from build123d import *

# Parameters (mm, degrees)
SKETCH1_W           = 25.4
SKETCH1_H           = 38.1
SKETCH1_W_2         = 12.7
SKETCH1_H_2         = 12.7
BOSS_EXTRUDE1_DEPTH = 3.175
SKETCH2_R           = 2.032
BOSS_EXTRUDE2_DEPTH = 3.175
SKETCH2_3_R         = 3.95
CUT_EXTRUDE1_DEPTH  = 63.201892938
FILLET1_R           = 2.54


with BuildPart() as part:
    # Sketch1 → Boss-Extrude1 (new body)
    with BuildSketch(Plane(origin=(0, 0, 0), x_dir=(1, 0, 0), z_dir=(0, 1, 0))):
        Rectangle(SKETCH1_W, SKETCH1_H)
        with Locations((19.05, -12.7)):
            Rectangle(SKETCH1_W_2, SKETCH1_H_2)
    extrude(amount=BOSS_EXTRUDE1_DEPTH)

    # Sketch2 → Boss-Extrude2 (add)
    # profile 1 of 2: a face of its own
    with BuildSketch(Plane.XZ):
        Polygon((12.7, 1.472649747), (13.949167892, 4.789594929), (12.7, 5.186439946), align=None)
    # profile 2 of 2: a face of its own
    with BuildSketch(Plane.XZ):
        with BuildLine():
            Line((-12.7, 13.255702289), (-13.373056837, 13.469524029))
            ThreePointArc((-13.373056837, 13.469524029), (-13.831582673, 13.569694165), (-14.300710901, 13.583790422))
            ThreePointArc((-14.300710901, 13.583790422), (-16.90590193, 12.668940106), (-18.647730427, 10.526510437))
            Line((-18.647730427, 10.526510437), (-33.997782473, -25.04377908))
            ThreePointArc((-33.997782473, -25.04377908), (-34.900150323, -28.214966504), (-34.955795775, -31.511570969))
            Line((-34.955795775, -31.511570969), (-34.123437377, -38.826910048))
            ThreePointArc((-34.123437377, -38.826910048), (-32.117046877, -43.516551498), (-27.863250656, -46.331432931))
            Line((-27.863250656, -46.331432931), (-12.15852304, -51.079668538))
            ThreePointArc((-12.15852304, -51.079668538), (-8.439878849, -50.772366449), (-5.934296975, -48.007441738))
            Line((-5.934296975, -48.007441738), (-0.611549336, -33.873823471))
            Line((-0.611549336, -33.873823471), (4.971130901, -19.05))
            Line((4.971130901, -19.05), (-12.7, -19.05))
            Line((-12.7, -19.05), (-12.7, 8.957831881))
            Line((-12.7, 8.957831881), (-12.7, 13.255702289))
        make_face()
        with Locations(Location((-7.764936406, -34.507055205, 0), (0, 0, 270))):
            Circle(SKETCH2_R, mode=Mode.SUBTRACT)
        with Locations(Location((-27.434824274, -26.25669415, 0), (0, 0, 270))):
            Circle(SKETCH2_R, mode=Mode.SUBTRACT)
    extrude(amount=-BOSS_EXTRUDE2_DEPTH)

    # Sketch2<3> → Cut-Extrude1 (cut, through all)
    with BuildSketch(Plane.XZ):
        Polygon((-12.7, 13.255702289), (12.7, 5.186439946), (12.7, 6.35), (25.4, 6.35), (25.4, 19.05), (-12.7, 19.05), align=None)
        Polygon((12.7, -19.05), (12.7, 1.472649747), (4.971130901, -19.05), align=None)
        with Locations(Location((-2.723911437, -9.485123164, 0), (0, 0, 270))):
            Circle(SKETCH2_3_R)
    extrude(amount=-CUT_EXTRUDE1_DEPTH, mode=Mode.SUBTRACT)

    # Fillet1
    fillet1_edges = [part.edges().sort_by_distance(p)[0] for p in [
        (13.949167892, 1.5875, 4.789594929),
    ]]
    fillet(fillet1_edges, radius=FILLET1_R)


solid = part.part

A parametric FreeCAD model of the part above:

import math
import FreeCAD as App
import Part
import Sketcher
from FreeCAD import Vector
Q = App.Units.Quantity


def edges_at(feature, points):
    """Names of the edges that pass closest to the given points."""
    edges = feature.Shape.Edges
    near = lambda p: min(range(len(edges)), key=lambda i: edges[i].distToShape(Part.Vertex(*p))[0])
    return sorted({f"Edge{near(p) + 1}" for p in points})


def add_polygon(sketch, points):
    """Adds a closed chain of lines whose ends are joined by coincident constraints."""
    first, n = sketch.GeometryCount, len(points)
    for a, b in zip(points, points[1:] + points[:1]):
        sketch.addGeometry(Part.LineSegment(App.Vector(*a, 0), App.Vector(*b, 0)), False)
    for i in range(n):
        sketch.addConstraint(Sketcher.Constraint("Coincident", first + i, 2, first + (i + 1) % n, 1))

doc = App.newDocument("Part")
body = doc.addObject("PartDesign::Body", "Body")

# Sketch on XZ plane
sketch1 = body.newObject("Sketcher::SketchObject", "Sketch")
sketch1.AttachmentSupport = (doc.getObject("XZ_Plane"), [""])
sketch1.MapMode = "FlatFace"
add_polygon(sketch1, [(-13, -19), (-13, 19), (25, 19), (25, 6), (13, 6), (13, -19)])  # lines 0-5
sketch1.addConstraint([
    Sketcher.Constraint("Vertical", 0),
    Sketcher.Constraint("Horizontal", 1),
    Sketcher.Constraint("Vertical", 2),
    Sketcher.Constraint("Horizontal", 3),
    Sketcher.Constraint("Vertical", 4),
    Sketcher.Constraint("Horizontal", 5),
    Sketcher.Constraint("Symmetric", 0, 2, 4, 2, -1, 1),
    Sketcher.Constraint("Equal", 1, 0),
    Sketcher.Constraint("Equal", 3, 2),
    Sketcher.Constraint("DistanceX", 5, 2, 5, 1, Q("1 in")),
    Sketcher.Constraint("DistanceX", 1, 1, 1, 2, Q("1.5 in")),
])
pad1 = body.newObject("PartDesign::Pad", "Pad")
pad1.Profile = sketch1
pad1.Length = Q("0.125 in")
pad1.Reversed = True

# Sketch on XZ plane
sketch2 = body.newObject("Sketcher::SketchObject", "Sketch001")
sketch2.AttachmentSupport = (doc.getObject("XZ_Plane"), [""])
sketch2.MapMode = "FlatFace"
add_polygon(sketch2, [(12.7, 1.5), (13.9, 4.8), (12.7, 5.2)])  # lines 0-2
sketch2.addGeometry(Part.LineSegment(Vector(-12.7, 13.3, 0), Vector(-13.4, 13.5, 0)), False)  # 3
sketch2.addGeometry(Part.ArcOfCircle(Part.Circle(Vector(-14.1, 11, 0), Vector(0, 0, 1), 2.5), math.radians(72), math.radians(94)), False)  # 4
sketch2.addGeometry(Part.ArcOfCircle(Part.Circle(Vector(-14, 8.5, 0), Vector(0, 0, 1), 5.1), math.radians(94), math.radians(157)), False)  # 5
sketch2.addGeometry(Part.LineSegment(Vector(-18.6, 10.5, 0), Vector(-34, -25, 0)), False)  # 6
sketch2.addGeometry(Part.ArcOfCircle(Part.Circle(Vector(-22.3, -30.1, 0), Vector(0, 0, 1), 12.7), math.radians(157), math.radians(186)), False)  # 7
sketch2.addGeometry(Part.LineSegment(Vector(-35, -31.5, 0), Vector(-34.1, -38.8, 0)), False)  # 8
sketch2.addGeometry(Part.ArcOfCircle(Part.Circle(Vector(-25.3, -37.8, 0), Vector(0, 0, 1), 8.9), math.radians(-174), math.radians(-107)), False)  # 9
sketch2.addGeometry(Part.LineSegment(Vector(-27.9, -46.3, 0), Vector(-12.2, -51.1, 0)), False)  # 10
sketch2.addGeometry(Part.ArcOfCircle(Part.Circle(Vector(-10.7, -46.2, 0), Vector(0, 0, 1), 5.1), math.radians(-107), math.radians(-21)), False)  # 11
sketch2.addGeometry(Part.LineSegment(Vector(-5.9, -48, 0), Vector(-0.6, -33.9, 0)), False)  # 12
sketch2.addGeometry(Part.LineSegment(Vector(-0.6, -33.9, 0), Vector(5, -19.1, 0)), False)  # 13
sketch2.addGeometry(Part.LineSegment(Vector(5, -19.1, 0), Vector(-12.7, -19.1, 0)), False)  # 14
sketch2.addGeometry(Part.LineSegment(Vector(-12.7, -19.1, 0), Vector(-12.7, 13.3, 0)), False)  # 15
sketch2.addGeometry(Part.Circle(Vector(-7.8, -34.5, 0), Vector(0, 0, 1), 2), False)  # 16
sketch2.addGeometry(Part.Circle(Vector(-27.4, -26.3, 0), Vector(0, 0, 1), 2), False)  # 17
sketch2.addConstraint([
    Sketcher.Constraint("Tangent", 3, 2, 4, 1),
    Sketcher.Constraint("Tangent", 4, 2, 5, 1),
    Sketcher.Constraint("Tangent", 5, 2, 6, 1),
    Sketcher.Constraint("Tangent", 6, 2, 7, 1),
    Sketcher.Constraint("Tangent", 7, 2, 8, 1),
    Sketcher.Constraint("Tangent", 8, 2, 9, 1),
    Sketcher.Constraint("Tangent", 9, 2, 10, 1),
    Sketcher.Constraint("Tangent", 10, 2, 11, 1),
    Sketcher.Constraint("Tangent", 11, 2, 12, 1),
    Sketcher.Constraint("Coincident", 12, 2, 13, 1),
    Sketcher.Constraint("Coincident", 13, 2, 14, 1),
    Sketcher.Constraint("Coincident", 14, 2, 15, 1),
    Sketcher.Constraint("Coincident", 15, 2, 3, 1),
    Sketcher.Constraint("Vertical", 2),
    Sketcher.Constraint("Horizontal", 14),
    Sketcher.Constraint("Vertical", 15),
    Sketcher.Constraint("Equal", 5, 11),
    Sketcher.Constraint("Equal", 16, 17),
    Sketcher.Constraint("Parallel", 1, 3),
    Sketcher.Constraint("Parallel", 0, 12),
    Sketcher.Constraint("Parallel", 12, 13),
    Sketcher.Constraint("Radius", 4, Q("0.1 in")),
    Sketcher.Constraint("Radius", 5, Q("0.2 in")),
    Sketcher.Constraint("Radius", 7, Q("0.5 in")),
    Sketcher.Constraint("Diameter", 16, Q("0.16 in")),
    Sketcher.Constraint("Radius", 9, Q("0.35 in")),
    Sketcher.Constraint("DistanceX", -1, 1, 1, 2, Q("0.5 in")),
    Sketcher.Constraint("DistanceX", 14, 2, -1, 1, Q("0.5 in")),
    Sketcher.Constraint("DistanceY", 13, 2, -1, 1, Q("0.75 in")),
    Sketcher.Constraint("DistanceX", 4, 2, 0, 2, Q("1.1122 in")),
    Sketcher.Constraint("DistanceX", 14, 2, 14, 1, Q("17.671131 mm")),
    Sketcher.Constraint("DistanceY", 2, 2, 2, 1, Q("3.71379 mm")),
    Sketcher.Constraint("DistanceY", 7, 3, 5, 3, Q("38.5895 mm")),
    Sketcher.Constraint("DistanceY", 7, 3, 17, 3, Q("3.819102 mm")),
    Sketcher.Constraint("DistanceY", 10, 2, 9, 3, Q("13.257801 mm")),
    Sketcher.Constraint("DistanceY", 5, 3, 15, 2, Q("4.741999 mm")),
    Sketcher.Constraint("Distance", 0, Q("3.544368 mm")),
    Sketcher.Constraint("Distance", 1, Q("1.310689 mm")),
    Sketcher.Constraint("Distance", 6, Q("38.741058 mm")),
    Sketcher.Constraint("Distance", 8, Q("7.362541 mm")),
    Sketcher.Constraint("DistanceY", 15, 1, 15, 2, Q("32.305702 mm")),
    Sketcher.Constraint("DistanceX", 9, 3, -1, 1, Q("25.290432 mm")),
    Sketcher.Constraint("DistanceY", -1, 1, 1, 2, Q("5.18644 mm")),
    Sketcher.Constraint("DistanceX", 12, 2, -1, 1, Q("0.611549 mm")),
    Sketcher.Constraint("DistanceX", 7, 3, 16, 3, Q("14.57228 mm")),
    Sketcher.Constraint("DistanceY", 16, 3, 7, 3, Q("4.431259 mm")),
    Sketcher.Constraint("DistanceX", 17, 3, 7, 3, Q("5.097608 mm")),
])
pad2 = body.newObject("PartDesign::Pad", "Pad001")
pad2.Profile = sketch2
pad2.Length = Q("0.125 in")
pad2.Reversed = True

# Sketch on XZ plane
sketch3 = body.newObject("Sketcher::SketchObject", "Sketch002")
sketch3.AttachmentSupport = (doc.getObject("XZ_Plane"), [""])
sketch3.MapMode = "FlatFace"
add_polygon(sketch3, [(-12.7, 13.3), (12.7, 5.2), (12.7, 6.3), (25.4, 6.3), (25.4, 19.1), (-12.7, 19.1)])  # lines 0-5
add_polygon(sketch3, [(12.7, -19.1), (12.7, 1.5), (5, -19.1)])  # lines 6-8
sketch3.addGeometry(Part.Circle(Vector(-2.7, -9.5, 0), Vector(0, 0, 1), 4), False)  # 9
sketch3.addConstraint([
    Sketcher.Constraint("Vertical", 1),
    Sketcher.Constraint("Horizontal", 2),
    Sketcher.Constraint("Vertical", 3),
    Sketcher.Constraint("Horizontal", 4),
    Sketcher.Constraint("Vertical", 5),
    Sketcher.Constraint("Vertical", 6),
    Sketcher.Constraint("Horizontal", 8),
    Sketcher.Constraint("Symmetric", 4, 2, 8, 2, -1, 1),
    Sketcher.Constraint("Vertical", 1, 2, 6, 2),
    Sketcher.Constraint("Equal", 2, 3),
    Sketcher.Constraint("DistanceX", 2, 1, 2, 2, Q("0.5 in")),
    Sketcher.Constraint("DistanceX", 4, 2, 4, 1, Q("1.5 in")),
    Sketcher.Constraint("DistanceY", 7, 2, 1, 2, Q("1 in")),
    Sketcher.Constraint("Diameter", 9, Q("7.9 mm")),
    Sketcher.Constraint("DistanceX", 8, 1, 8, 2, Q("7.728869 mm")),
    Sketcher.Constraint("DistanceY", 1, 1, 1, 2, Q("1.16356 mm")),
    Sketcher.Constraint("DistanceY", 6, 1, 6, 2, Q("20.52265 mm")),
    Sketcher.Constraint("DistanceY", 5, 2, 5, 1, Q("5.794298 mm")),
    Sketcher.Constraint("DistanceX", 9, 3, -1, 1, Q("2.723911 mm")),
    Sketcher.Constraint("DistanceY", 9, 3, -1, 1, Q("9.485123 mm")),
])
pocket1 = body.newObject("PartDesign::Pocket", "Pocket")
pocket1.Profile = sketch3
pocket1.Type = "ThroughAll"
doc.recompute()

fillet = body.newObject("PartDesign::Fillet", "Fillet")
fillet.Base = (pocket1, edges_at(pocket1, [(13.949, 1.587, 4.79)]))
fillet.Radius = Q("0.1 in")

doc.recompute()
